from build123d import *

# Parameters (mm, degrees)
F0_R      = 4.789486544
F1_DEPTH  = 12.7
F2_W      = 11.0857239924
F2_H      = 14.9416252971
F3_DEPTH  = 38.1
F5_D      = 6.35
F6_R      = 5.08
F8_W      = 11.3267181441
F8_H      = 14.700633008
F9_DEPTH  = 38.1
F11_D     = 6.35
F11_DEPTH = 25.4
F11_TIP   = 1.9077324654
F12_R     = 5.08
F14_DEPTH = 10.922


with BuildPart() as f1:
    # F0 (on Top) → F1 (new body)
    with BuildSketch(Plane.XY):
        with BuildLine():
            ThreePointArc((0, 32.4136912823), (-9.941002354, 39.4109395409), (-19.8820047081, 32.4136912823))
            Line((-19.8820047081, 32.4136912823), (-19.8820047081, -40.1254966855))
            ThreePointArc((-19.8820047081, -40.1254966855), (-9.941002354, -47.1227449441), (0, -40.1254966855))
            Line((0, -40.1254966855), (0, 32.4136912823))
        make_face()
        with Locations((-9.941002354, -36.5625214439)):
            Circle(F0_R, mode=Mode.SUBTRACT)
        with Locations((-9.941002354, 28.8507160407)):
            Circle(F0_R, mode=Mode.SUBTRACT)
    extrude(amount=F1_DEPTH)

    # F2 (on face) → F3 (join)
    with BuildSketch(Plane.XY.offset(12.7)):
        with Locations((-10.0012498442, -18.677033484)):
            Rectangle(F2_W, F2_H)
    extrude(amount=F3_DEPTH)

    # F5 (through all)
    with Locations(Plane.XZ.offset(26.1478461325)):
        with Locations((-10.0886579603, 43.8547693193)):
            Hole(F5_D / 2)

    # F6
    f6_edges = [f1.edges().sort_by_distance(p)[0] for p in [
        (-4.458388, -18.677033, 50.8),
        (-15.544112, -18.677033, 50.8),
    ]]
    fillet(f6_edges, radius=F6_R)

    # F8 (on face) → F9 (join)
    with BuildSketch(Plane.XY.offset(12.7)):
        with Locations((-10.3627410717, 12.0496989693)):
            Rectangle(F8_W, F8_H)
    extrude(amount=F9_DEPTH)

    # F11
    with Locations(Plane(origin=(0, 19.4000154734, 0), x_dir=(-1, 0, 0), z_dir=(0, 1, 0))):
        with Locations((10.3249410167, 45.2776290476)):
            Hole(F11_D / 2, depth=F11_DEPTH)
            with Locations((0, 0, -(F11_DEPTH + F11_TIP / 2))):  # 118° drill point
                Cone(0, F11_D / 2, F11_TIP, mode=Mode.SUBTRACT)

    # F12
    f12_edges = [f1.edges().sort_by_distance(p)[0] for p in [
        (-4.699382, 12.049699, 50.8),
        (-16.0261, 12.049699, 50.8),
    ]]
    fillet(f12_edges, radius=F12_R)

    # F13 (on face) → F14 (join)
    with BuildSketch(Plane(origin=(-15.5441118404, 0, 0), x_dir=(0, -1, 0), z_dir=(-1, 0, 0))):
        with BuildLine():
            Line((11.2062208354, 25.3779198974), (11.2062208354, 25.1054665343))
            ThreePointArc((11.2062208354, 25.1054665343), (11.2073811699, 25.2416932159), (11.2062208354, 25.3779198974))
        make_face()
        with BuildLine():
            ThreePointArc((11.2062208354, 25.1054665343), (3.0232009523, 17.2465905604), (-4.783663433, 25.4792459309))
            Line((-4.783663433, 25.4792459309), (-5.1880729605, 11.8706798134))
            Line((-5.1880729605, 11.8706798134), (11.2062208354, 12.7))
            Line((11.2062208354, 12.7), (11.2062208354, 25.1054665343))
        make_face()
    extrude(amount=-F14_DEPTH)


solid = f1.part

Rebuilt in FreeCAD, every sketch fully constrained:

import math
import FreeCAD as App
import Part
import Sketcher
from FreeCAD import Vector
Q = App.Units.Quantity


def edges_at(feature, points):
    """Names of the edges that pass closest to the given points."""
    edges = feature.Shape.Edges
    near = lambda p: min(range(len(edges)), key=lambda i: edges[i].distToShape(Part.Vertex(*p))[0])
    return sorted({f"Edge{near(p) + 1}" for p in points})

doc = App.newDocument("Part")
params = doc.addObject("Spreadsheet::Sheet", "Params")
for row, (alias, value) in enumerate([
    ("pad1_length", "0.5 in"),
    ("pad2_length", "1.5 in"),
    ("sketch3_diameter", "0.25 in"),
    ("hole_diameter", "0.25 in"),
    ("fillet_radius", "0.2 in"),
    ("pad3_length", "1.5 in"),
    ("sketch5_diameter", "0.25 in"),
    ("hole2_diameter", "0.25 in"),
    ("hole2_depth", "1 in"),
    ("fillet2_radius", "0.2 in"),
    ("pad4_length", "0.43 in"),
], start=1):
    params.set(f"A{row}", alias)
    params.set(f"B{row}", "=" + value)
    params.setAlias(f"B{row}", alias)

body = doc.addObject("PartDesign::Body", "Body")

sketch1 = body.newObject("Sketcher::SketchObject", "Sketch")
sketch1.AttachmentSupport = (doc.getObject("XY_Plane"), [""])
sketch1.MapMode = "FlatFace"
sketch1.addGeometry([
    Part.ArcOfCircle(Part.Circle(Vector(-9.9, 28.9, 0), Vector(0, 0, 1), 10.6), math.radians(20), math.radians(160)),
    Part.LineSegment(Vector(-19.9, 32.4, 0), Vector(-19.9, -40.1, 0)),
    Part.ArcOfCircle(Part.Circle(Vector(-9.9, -36.6, 0), Vector(0, 0, 1), 10.6), math.radians(-160), math.radians(-20)),
    Part.LineSegment(Vector(0, -40.1, 0), Vector(0, 32.4, 0)),
    Part.Circle(Vector(-9.9, -36.6, 0), Vector(0, 0, 1), 4.8),
    Part.Circle(Vector(-9.9, 28.9, 0), Vector(0, 0, 1), 4.8),
], False)
sketch1.addConstraint([
    Sketcher.Constraint("Coincident", 0, 2, 1, 1),
    Sketcher.Constraint("Coincident", 1, 2, 2, 1),
    Sketcher.Constraint("Coincident", 2, 2, 3, 1),
    Sketcher.Constraint("Coincident", 3, 2, 0, 1),
    Sketcher.Constraint("Vertical", 1),
    Sketcher.Constraint("Vertical", 3),
    Sketcher.Constraint("Coincident", 4, 3, 2, 3),
    Sketcher.Constraint("Coincident", 5, 3, 0, 3),
    Sketcher.Constraint("Equal", 0, 2),
    Sketcher.Constraint("Equal", 4, 5),
    Sketcher.Constraint("PointOnObject", 2, 2, -2),
    Sketcher.Constraint("Horizontal", 1, 2, 2, 2),
    Sketcher.Constraint("Horizontal", 0, 2, 3, 2),
    Sketcher.Constraint("Diameter", 4, 9.578973),
    Sketcher.Constraint("Radius", 0, 10.560223),
    Sketcher.Constraint("DistanceY", 1, 2, 1, 1, 72.539188),
    Sketcher.Constraint("DistanceY", 2, 3, -1, 1, 36.562521),
    Sketcher.Constraint("DistanceY", -1, 1, 0, 2, 32.413691),
])
pad1 = body.newObject("PartDesign::Pad", "Pad")
pad1.Profile = sketch1
pad1.setExpression("Length", "Params.pad1_length")

sketch2 = body.newObject("Sketcher::SketchObject", "Sketch001")
sketch2.AttachmentSupport = (doc.getObject("XY_Plane"), [""])
sketch2.MapMode = "FlatFace"
sketch2.AttachmentOffset = App.Placement(Vector(0, 0, 0.5 * 25.4), App.Rotation())
sketch2.addGeometry([
    Part.LineSegment(Vector(-16, -11, 0), Vector(-16, -26, 0)),
    Part.LineSegment(Vector(-16, -26, 0), Vector(-4, -26, 0)),
    Part.LineSegment(Vector(-4, -26, 0), Vector(-4, -11, 0)),
    Part.LineSegment(Vector(-4, -11, 0), Vector(-16, -11, 0)),
], False)
sketch2.addConstraint([
    Sketcher.Constraint("Coincident", 0, 2, 1, 1),
    Sketcher.Constraint("Coincident", 1, 2, 2, 1),
    Sketcher.Constraint("Coincident", 2, 2, 3, 1),
    Sketcher.Constraint("Coincident", 3, 2, 0, 1),
    Sketcher.Constraint("Vertical", 0),
    Sketcher.Constraint("Horizontal", 1),
    Sketcher.Constraint("Vertical", 2),
    Sketcher.Constraint("Horizontal", 3),
    Sketcher.Constraint("DistanceX", 1, 1, 1, 2, 11.085724),
    Sketcher.Constraint("DistanceY", 0, 2, 0, 1, 14.941625),
    Sketcher.Constraint("DistanceX", 0, 2, -1, 1, 15.544112),
    Sketcher.Constraint("DistanceY", 2, 2, -1, 1, 11.206221),
])
pad2 = body.newObject("PartDesign::Pad", "Pad001")
pad2.Profile = sketch2
pad2.setExpression("Length", "Params.pad2_length")

sketch3 = body.newObject("Sketcher::SketchObject", "Sketch002")
sketch3.AttachmentSupport = (doc.getObject("XZ_Plane"), [""])
sketch3.MapMode = "FlatFace"
sketch3.AttachmentOffset = App.Placement(Vector(0, 0, 26.147846), App.Rotation())
sketch3.addGeometry(Part.Circle(Vector(-10.1, 43.9, 0), Vector(0, 0, 1), 3.2), False)
sketch3.addConstraint([
    Sketcher.Constraint("Diameter", 0, Q("0.25 in")),
    Sketcher.Constraint("DistanceY", -1, 1, 0, 3, 43.854769),
    Sketcher.Constraint("DistanceX", 0, 3, -1, 1, 10.088658),
])
sketch3.setExpression("Constraints[0]", "Params.sketch3_diameter")
doc.recompute()
hole = body.newObject("PartDesign::Hole", "Hole")
hole.Profile = sketch3
hole.ThreadType = "None"
hole.setExpression("Diameter", "Params.hole_diameter")
hole.DepthType = "ThroughAll"
doc.recompute()

fillet = body.newObject("PartDesign::Fillet", "Fillet")
fillet.Base = (hole, edges_at(hole, [(-4.458, -18.677, 50.8), (-15.544, -18.677, 50.8)]))
fillet.setExpression("Radius", "Params.fillet_radius")

sketch4 = body.newObject("Sketcher::SketchObject", "Sketch003")
sketch4.AttachmentSupport = (doc.getObject("XY_Plane"), [""])
sketch4.MapMode = "FlatFace"
sketch4.AttachmentOffset = App.Placement(Vector(0, 0, 0.5 * 25.4), App.Rotation())
sketch4.addGeometry([
    Part.LineSegment(Vector(-16, 19, 0), Vector(-16, 5, 0)),
    Part.LineSegment(Vector(-16, 5, 0), Vector(-5, 5, 0)),
    Part.LineSegment(Vector(-5, 5, 0), Vector(-5, 19, 0)),
    Part.LineSegment(Vector(-5, 19, 0), Vector(-16, 19, 0)),
], False)
sketch4.addConstraint([
    Sketcher.Constraint("Coincident", 0, 2, 1, 1),
    Sketcher.Constraint("Coincident", 1, 2, 2, 1),
    Sketcher.Constraint("Coincident", 2, 2, 3, 1),
    Sketcher.Constraint("Coincident", 3, 2, 0, 1),
    Sketcher.Constraint("Vertical", 0),
    Sketcher.Constraint("Horizontal", 1),
    Sketcher.Constraint("Vertical", 2),
    Sketcher.Constraint("Horizontal", 3),
    Sketcher.Constraint("DistanceX", 1, 1, 1, 2, 11.326718),
    Sketcher.Constraint("DistanceX", 0, 2, -1, 1, 16.0261),
    Sketcher.Constraint("DistanceY", 0, 2, 0, 1, 14.700633),
    Sketcher.Constraint("DistanceY", -1, 1, 0, 2, 4.699382),
])
pad3 = body.newObject("PartDesign::Pad", "Pad002")
pad3.Profile = sketch4
pad3.setExpression("Length", "Params.pad3_length")

sketch5 = body.newObject("Sketcher::SketchObject", "Sketch004")
sketch5.AttachmentSupport = (doc.getObject("XZ_Plane"), [""])
sketch5.MapMode = "FlatFace"
sketch5.AttachmentOffset = App.Placement(Vector(0, 0, -19.400015), App.Rotation())
sketch5.addGeometry(Part.Circle(Vector(-10.3, 45.3, 0), Vector(0, 0, 1), 3.2), False)
sketch5.addConstraint([
    Sketcher.Constraint("Diameter", 0, Q("0.25 in")),
    Sketcher.Constraint("DistanceX", 0, 3, -1, 1, 10.324941),
    Sketcher.Constraint("DistanceY", -1, 1, 0, 3, 45.277629),
])
sketch5.setExpression("Constraints[0]", "Params.sketch5_diameter")
doc.recompute()
hole2 = body.newObject("PartDesign::Hole", "Hole001")
hole2.Profile = sketch5
hole2.ThreadType = "None"
hole2.setExpression("Diameter", "Params.hole2_diameter")
hole2.DepthType = "Dimension"
hole2.setExpression("Depth", "Params.hole2_depth")
hole2.DrillPoint = "Angled"
hole2.DrillPointAngle = 118
hole2.Reversed = True
doc.recompute()

fillet2 = body.newObject("PartDesign::Fillet", "Fillet001")
fillet2.Base = (hole2, edges_at(hole2, [(-4.699, 12.05, 50.8), (-16.026, 12.05, 50.8)]))
fillet2.setExpression("Radius", "Params.fillet2_radius")

sketch6 = body.newObject("Sketcher::SketchObject", "Sketch005")
sketch6.AttachmentSupport = (doc.getObject("YZ_Plane"), [""])
sketch6.MapMode = "FlatFace"
sketch6.AttachmentOffset = App.Placement(Vector(0, 0, -15.544112), App.Rotation())
sketch6.addGeometry([
    Part.LineSegment(Vector(-11.21, 25.38, 0), Vector(-11.21, 25.11, 0)),
    Part.ArcOfCircle(Part.Circle(Vector(-3.21, 25.24, 0), Vector(0, 0, 1), 8), math.radians(179.02), math.radians(180.98)),
    Part.ArcOfCircle(Part.Circle(Vector(-3.21, 25.24, 0), Vector(0, 0, 1), 8), math.radians(-179), math.radians(2)),
    Part.LineSegment(Vector(4.78, 25.48, 0), Vector(5.19, 11.87, 0)),
    Part.LineSegment(Vector(5.19, 11.87, 0), Vector(-11.21, 12.7, 0)),
    Part.LineSegment(Vector(-11.21, 12.7, 0), Vector(-11.21, 25.11, 0)),
], False)
sketch6.addConstraint([
    Sketcher.Constraint("Coincident", 0, 1, 1, 1),
    Sketcher.Constraint("Coincident", 1, 2, 0, 2),
    Sketcher.Constraint("Tangent", 2, 2, 3, 1),
    Sketcher.Constraint("Coincident", 3, 2, 4, 1),
    Sketcher.Constraint("Coincident", 4, 2, 5, 1),
    Sketcher.Constraint("Coincident", 5, 2, 2, 1),
    Sketcher.Constraint("Vertical", 0),
    Sketcher.Constraint("Vertical", 5),
    Sketcher.Constraint("Coincident", 2, 3, 1, 3),
    Sketcher.Constraint("Coincident", 5, 2, 1, 2),
    Sketcher.Constraint("DistanceY", -1, 1, 4, 2, Q("0.5 in")),
    Sketcher.Constraint("Radius", 1, 7.997287),
    Sketcher.Constraint("DistanceY", 0, 2, 0, 1, 0.272453),
    Sketcher.Constraint("DistanceY", 5, 1, 5, 2, 12.405467),
    Sketcher.Constraint("DistanceX", 0, 1, -1, 1, 11.206221),
    Sketcher.Constraint("DistanceY", -1, 1, 3, 2, 11.87068),
    Sketcher.Constraint("DistanceY", 1, 2, 2, 2, 0.373779),
])
pad4 = body.newObject("PartDesign::Pad", "Pad003")
pad4.Profile = sketch6
pad4.setExpression("Length", "Params.pad4_length")

doc.recompute()
